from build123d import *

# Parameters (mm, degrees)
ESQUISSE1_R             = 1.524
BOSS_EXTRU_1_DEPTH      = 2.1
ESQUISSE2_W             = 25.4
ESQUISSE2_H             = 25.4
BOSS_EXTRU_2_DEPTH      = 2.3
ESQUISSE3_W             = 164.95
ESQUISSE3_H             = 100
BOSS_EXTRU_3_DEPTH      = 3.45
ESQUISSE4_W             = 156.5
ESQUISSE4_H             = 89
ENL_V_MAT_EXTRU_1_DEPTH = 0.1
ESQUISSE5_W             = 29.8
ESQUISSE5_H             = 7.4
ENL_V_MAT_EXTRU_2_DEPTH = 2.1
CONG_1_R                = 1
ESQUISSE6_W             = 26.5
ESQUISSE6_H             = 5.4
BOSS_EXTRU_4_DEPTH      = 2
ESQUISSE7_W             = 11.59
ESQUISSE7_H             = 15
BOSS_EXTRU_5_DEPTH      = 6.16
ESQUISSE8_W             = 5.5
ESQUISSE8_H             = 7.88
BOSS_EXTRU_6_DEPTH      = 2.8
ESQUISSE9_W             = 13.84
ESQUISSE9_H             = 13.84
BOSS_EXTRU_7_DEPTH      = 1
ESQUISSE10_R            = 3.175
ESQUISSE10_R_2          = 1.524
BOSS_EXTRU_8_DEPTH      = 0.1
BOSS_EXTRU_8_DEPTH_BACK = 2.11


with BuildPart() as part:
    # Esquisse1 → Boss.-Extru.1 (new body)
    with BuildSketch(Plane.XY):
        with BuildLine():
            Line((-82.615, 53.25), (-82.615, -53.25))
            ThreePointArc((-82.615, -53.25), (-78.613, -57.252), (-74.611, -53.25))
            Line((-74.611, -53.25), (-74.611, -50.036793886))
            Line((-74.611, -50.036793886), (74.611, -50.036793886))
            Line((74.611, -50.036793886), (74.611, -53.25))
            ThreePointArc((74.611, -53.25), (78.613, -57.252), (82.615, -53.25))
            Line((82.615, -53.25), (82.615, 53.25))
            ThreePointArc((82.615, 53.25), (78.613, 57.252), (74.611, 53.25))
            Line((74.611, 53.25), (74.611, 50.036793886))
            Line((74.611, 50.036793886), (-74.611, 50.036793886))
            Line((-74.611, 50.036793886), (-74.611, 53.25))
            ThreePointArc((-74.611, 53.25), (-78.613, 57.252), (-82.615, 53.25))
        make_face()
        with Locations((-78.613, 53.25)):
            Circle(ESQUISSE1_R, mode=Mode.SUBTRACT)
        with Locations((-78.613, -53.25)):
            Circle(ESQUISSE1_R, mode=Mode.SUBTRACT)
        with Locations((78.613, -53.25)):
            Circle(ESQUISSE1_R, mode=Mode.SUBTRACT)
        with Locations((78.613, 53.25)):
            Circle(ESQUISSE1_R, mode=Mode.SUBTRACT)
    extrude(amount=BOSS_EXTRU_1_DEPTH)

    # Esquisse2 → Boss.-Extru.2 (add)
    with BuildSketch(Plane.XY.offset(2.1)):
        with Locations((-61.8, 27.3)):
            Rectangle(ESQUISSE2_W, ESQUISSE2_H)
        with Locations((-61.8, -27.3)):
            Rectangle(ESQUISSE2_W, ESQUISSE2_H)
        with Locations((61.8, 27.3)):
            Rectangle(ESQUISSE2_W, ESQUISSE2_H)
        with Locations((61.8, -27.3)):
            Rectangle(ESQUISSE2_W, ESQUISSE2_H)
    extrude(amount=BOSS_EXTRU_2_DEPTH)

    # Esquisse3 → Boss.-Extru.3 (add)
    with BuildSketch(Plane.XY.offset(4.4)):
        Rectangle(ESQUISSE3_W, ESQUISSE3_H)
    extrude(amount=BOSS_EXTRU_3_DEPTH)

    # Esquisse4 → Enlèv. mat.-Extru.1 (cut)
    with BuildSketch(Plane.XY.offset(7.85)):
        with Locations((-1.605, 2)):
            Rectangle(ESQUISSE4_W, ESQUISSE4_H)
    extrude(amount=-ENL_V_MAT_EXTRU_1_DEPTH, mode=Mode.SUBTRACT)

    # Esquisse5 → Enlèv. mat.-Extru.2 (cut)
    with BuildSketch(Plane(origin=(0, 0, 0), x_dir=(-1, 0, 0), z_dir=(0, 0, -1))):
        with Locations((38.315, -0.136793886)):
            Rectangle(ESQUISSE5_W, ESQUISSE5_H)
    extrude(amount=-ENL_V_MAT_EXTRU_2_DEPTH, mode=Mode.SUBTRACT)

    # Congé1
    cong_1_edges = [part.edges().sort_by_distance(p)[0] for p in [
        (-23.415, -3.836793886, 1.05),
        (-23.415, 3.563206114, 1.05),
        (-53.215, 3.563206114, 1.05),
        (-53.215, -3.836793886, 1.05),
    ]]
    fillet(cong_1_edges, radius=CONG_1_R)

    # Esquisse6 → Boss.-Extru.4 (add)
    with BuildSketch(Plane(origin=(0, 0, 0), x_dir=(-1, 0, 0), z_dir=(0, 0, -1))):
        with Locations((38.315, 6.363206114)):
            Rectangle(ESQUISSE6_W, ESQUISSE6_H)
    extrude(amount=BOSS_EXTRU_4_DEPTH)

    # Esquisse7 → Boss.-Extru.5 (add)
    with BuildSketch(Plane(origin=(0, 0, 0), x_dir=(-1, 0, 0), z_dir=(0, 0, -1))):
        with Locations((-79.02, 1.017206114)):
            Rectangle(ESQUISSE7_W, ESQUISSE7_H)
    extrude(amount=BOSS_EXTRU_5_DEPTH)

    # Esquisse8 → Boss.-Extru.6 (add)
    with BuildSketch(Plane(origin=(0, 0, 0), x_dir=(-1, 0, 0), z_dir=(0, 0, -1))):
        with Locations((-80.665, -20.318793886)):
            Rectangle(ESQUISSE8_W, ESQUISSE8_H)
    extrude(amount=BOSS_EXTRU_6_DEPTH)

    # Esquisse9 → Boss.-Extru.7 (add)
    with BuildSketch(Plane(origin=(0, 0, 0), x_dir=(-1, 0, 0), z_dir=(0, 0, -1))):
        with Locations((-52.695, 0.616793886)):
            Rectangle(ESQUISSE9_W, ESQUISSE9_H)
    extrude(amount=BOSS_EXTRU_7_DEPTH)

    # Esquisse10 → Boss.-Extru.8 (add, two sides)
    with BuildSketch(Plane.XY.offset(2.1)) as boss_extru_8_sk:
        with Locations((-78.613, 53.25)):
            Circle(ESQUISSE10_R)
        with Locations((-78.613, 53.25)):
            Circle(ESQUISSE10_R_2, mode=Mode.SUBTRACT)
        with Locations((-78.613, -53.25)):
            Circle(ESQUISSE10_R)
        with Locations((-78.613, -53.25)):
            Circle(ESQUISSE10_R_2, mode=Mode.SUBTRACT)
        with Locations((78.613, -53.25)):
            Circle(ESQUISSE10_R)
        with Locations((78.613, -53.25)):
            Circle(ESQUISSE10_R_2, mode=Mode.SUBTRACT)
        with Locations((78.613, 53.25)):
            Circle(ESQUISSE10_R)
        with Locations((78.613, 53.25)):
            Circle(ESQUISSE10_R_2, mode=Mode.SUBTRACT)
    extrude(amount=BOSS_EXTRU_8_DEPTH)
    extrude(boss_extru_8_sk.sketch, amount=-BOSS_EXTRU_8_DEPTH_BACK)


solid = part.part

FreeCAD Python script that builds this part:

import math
import FreeCAD as App
import Part
import Sketcher

V = App.Vector
Q = App.Units.Quantity


def edges_at(feature, points):
    """Names of the edges that pass closest to the given points."""
    edges = feature.Shape.Edges
    near = lambda p: min(range(len(edges)), key=lambda i: edges[i].distToShape(Part.Vertex(*p))[0])
    return sorted({f"Edge{near(p) + 1}" for p in points})

doc = App.newDocument("Part")
params = doc.addObject("Spreadsheet::Sheet", "Params")
for row, (alias, value) in enumerate([
    ("sketch1_height", "106.5 mm"),
    ("pad1_length", "2.1 mm"),
    ("sketch2_width", "25.4 mm"),
    ("pad2_length", "2.3 mm"),
    ("sketch3_height", "100 mm"),
    ("sketch3_width", "164.95 mm"),
    ("pad3_length", "3.45 mm"),
    ("sketch4_height", "89 mm"),
    ("sketch4_width", "156.5 mm"),
    ("pocket1_length", "0.1 mm"),
    ("sketch5_width", "29.8 mm"),
    ("sketch5_height", "7.4 mm"),
    ("pocket2_length", "2.1 mm"),
    ("fillet_radius", "1 mm"),
    ("sketch6_width", "26.5 mm"),
    ("sketch6_height", "5.4 mm"),
    ("pad4_length", "2 mm"),
    ("sketch7_height", "15 mm"),
    ("sketch7_width", "11.59 mm"),
    ("pad5_length", "6.16 mm"),
    ("sketch8_width", "5.5 mm"),
    ("sketch8_height", "7.88 mm"),
    ("pad6_length", "2.8 mm"),
    ("sketch9_width", "13.84 mm"),
    ("pad7_length", "1 mm"),
    ("sketch10_diameter", "6.35 mm"),
    ("pad8_length", "0.1 mm"),
    ("pad8_length2", "2.11 mm"),
], start=1):
    params.set(f"A{row}", alias)
    params.set(f"B{row}", "=" + value)
    params.setAlias(f"B{row}", alias)

body = doc.addObject("PartDesign::Body", "Body")

sketch1 = body.newObject("Sketcher::SketchObject", "Sketch")
sketch1.AttachmentSupport = (doc.getObject("XY_Plane"), [""])
sketch1.MapMode = "FlatFace"
sketch1.addGeometry([
    Part.LineSegment(V(-82.6, 53.2, 0), V(-82.6, -53.2, 0)),
    Part.ArcOfCircle(Part.Circle(V(-78.6, -53.2, 0), V(0, 0, 1), 4), math.radians(180), math.radians(360)),
    Part.LineSegment(V(-74.6, -53.2, 0), V(-74.6, -50, 0)),
    Part.LineSegment(V(-74.6, -50, 0), V(74.6, -50, 0)),
    Part.LineSegment(V(74.6, -50, 0), V(74.6, -53.2, 0)),
    Part.ArcOfCircle(Part.Circle(V(78.6, -53.2, 0), V(0, 0, 1), 4), math.radians(180), math.radians(360)),
    Part.LineSegment(V(82.6, -53.2, 0), V(82.6, 53.2, 0)),
    Part.ArcOfCircle(Part.Circle(V(78.6, 53.2, 0), V(0, 0, 1), 4), math.radians(0), math.radians(180)),
    Part.LineSegment(V(74.6, 53.2, 0), V(74.6, 50, 0)),
    Part.LineSegment(V(74.6, 50, 0), V(-74.6, 50, 0)),
    Part.LineSegment(V(-74.6, 50, 0), V(-74.6, 53.2, 0)),
    Part.ArcOfCircle(Part.Circle(V(-78.6, 53.2, 0), V(0, 0, 1), 4), math.radians(0), math.radians(180)),
    Part.Circle(V(-78.6, -53.2, 0), V(0, 0, 1), 1.5),
    Part.Circle(V(78.6, -53.2, 0), V(0, 0, 1), 1.5),
    Part.Circle(V(-78.6, 53.2, 0), V(0, 0, 1), 1.5),
    Part.Circle(V(78.6, 53.2, 0), V(0, 0, 1), 1.5),
], False)
sketch1.addConstraint([
    Sketcher.Constraint("Tangent", 0, 2, 1, 1),
    Sketcher.Constraint("Tangent", 1, 2, 2, 1),
    Sketcher.Constraint("Coincident", 2, 2, 3, 1),
    Sketcher.Constraint("Coincident", 3, 2, 4, 1),
    Sketcher.Constraint("Tangent", 4, 2, 5, 1),
    Sketcher.Constraint("Tangent", 5, 2, 6, 1),
    Sketcher.Constraint("Tangent", 6, 2, 7, 1),
    Sketcher.Constraint("Tangent", 7, 2, 8, 1),
    Sketcher.Constraint("Coincident", 8, 2, 9, 1),
    Sketcher.Constraint("Coincident", 9, 2, 10, 1),
    Sketcher.Constraint("Tangent", 10, 2, 11, 1),
    Sketcher.Constraint("Tangent", 11, 2, 0, 1),
    Sketcher.Constraint("Vertical", 0),
    Sketcher.Constraint("Vertical", 2),
    Sketcher.Constraint("Horizontal", 3),
    Sketcher.Constraint("Vertical", 4),
    Sketcher.Constraint("Vertical", 6),
    Sketcher.Constraint("Vertical", 8),
    Sketcher.Constraint("Horizontal", 9),
    Sketcher.Constraint("Vertical", 10),
    Sketcher.Constraint("Coincident", 12, 3, 1, 3),
    Sketcher.Constraint("Coincident", 13, 3, 5, 3),
    Sketcher.Constraint("Coincident", 14, 3, 11, 3),
    Sketcher.Constraint("Coincident", 15, 3, 7, 3),
    Sketcher.Constraint("Equal", 1, 5),
    Sketcher.Constraint("Equal", 5, 7),
    Sketcher.Constraint("Equal", 7, 11),
    Sketcher.Constraint("Equal", 12, 13),
    Sketcher.Constraint("Equal", 13, 14),
    Sketcher.Constraint("Equal", 14, 15),
    Sketcher.Constraint("Symmetric", 1, 3, 7, 3, -1, 1),
    Sketcher.Constraint("Horizontal", 1, 3, 5, 3),
    Sketcher.Constraint("Horizontal", 7, 3, 11, 3),
    Sketcher.Constraint("Equal", 4, 8),
    Sketcher.Constraint("Diameter", 12, Q("3.048 mm")),
    Sketcher.Constraint("DistanceY", 0, 2, 0, 1, Q("106.5 mm")),
    Sketcher.Constraint("Radius", 1, Q("4.002 mm")),
    Sketcher.Constraint("DistanceX", 3, 1, 3, 2, Q("149.222 mm")),
    Sketcher.Constraint("DistanceY", 2, 1, 2, 2, Q("3.213206 mm")),
])
sketch1.setExpression("Constraints[35]", "Params.sketch1_height")
pad1 = body.newObject("PartDesign::Pad", "Pad")
pad1.Profile = sketch1
pad1.setExpression("Length", "Params.pad1_length")

sketch2 = body.newObject("Sketcher::SketchObject", "Sketch001")
sketch2.AttachmentSupport = (doc.getObject("XY_Plane"), [""])
sketch2.MapMode = "FlatFace"
sketch2.AttachmentOffset = App.Placement(V(0, 0, 2.1), App.Rotation())
sketch2.addGeometry([
    Part.LineSegment(V(-74, 40, 0), V(-74, 15, 0)),
    Part.LineSegment(V(-74, 15, 0), V(-49, 15, 0)),
    Part.LineSegment(V(-49, 15, 0), V(-49, 40, 0)),
    Part.LineSegment(V(-49, 40, 0), V(-74, 40, 0)),
    Part.LineSegment(V(-74, -15, 0), V(-74, -40, 0)),
    Part.LineSegment(V(-74, -40, 0), V(-49, -40, 0)),
    Part.LineSegment(V(-49, -40, 0), V(-49, -15, 0)),
    Part.LineSegment(V(-49, -15, 0), V(-74, -15, 0)),
    Part.LineSegment(V(49, 40, 0), V(49, 15, 0)),
    Part.LineSegment(V(49, 15, 0), V(74, 15, 0)),
    Part.LineSegment(V(74, 15, 0), V(74, 40, 0)),
    Part.LineSegment(V(74, 40, 0), V(49, 40, 0)),
    Part.LineSegment(V(49, -15, 0), V(49, -40, 0)),
    Part.LineSegment(V(49, -40, 0), V(74, -40, 0)),
    Part.LineSegment(V(74, -40, 0), V(74, -15, 0)),
    Part.LineSegment(V(74, -15, 0), V(49, -15, 0)),
], False)
sketch2.addConstraint([
    Sketcher.Constraint("Coincident", 0, 2, 1, 1),
    Sketcher.Constraint("Coincident", 1, 2, 2, 1),
    Sketcher.Constraint("Coincident", 2, 2, 3, 1),
    Sketcher.Constraint("Coincident", 3, 2, 0, 1),
    Sketcher.Constraint("Coincident", 4, 2, 5, 1),
    Sketcher.Constraint("Coincident", 5, 2, 6, 1),
    Sketcher.Constraint("Coincident", 6, 2, 7, 1),
    Sketcher.Constraint("Coincident", 7, 2, 4, 1),
    Sketcher.Constraint("Coincident", 8, 2, 9, 1),
    Sketcher.Constraint("Coincident", 9, 2, 10, 1),
    Sketcher.Constraint("Coincident", 10, 2, 11, 1),
    Sketcher.Constraint("Coincident", 11, 2, 8, 1),
    Sketcher.Constraint("Coincident", 12, 2, 13, 1),
    Sketcher.Constraint("Coincident", 13, 2, 14, 1),
    Sketcher.Constraint("Coincident", 14, 2, 15, 1),
    Sketcher.Constraint("Coincident", 15, 2, 12, 1),
    Sketcher.Constraint("Vertical", 0),
    Sketcher.Constraint("Horizontal", 1),
    Sketcher.Constraint("Vertical", 2),
    Sketcher.Constraint("Horizontal", 3),
    Sketcher.Constraint("Vertical", 4),
    Sketcher.Constraint("Horizontal", 5),
    Sketcher.Constraint("Vertical", 6),
    Sketcher.Constraint("Horizontal", 7),
    Sketcher.Constraint("Vertical", 8),
    Sketcher.Constraint("Horizontal", 9),
    Sketcher.Constraint("Vertical", 10),
    Sketcher.Constraint("Horizontal", 11),
    Sketcher.Constraint("Vertical", 12),
    Sketcher.Constraint("Horizontal", 13),
    Sketcher.Constraint("Vertical", 14),
    Sketcher.Constraint("Horizontal", 15),
    Sketcher.Constraint("Symmetric", 6, 2, 8, 2, -1, 1),
    Sketcher.Constraint("Symmetric", 4, 2, 10, 2, -1, 1),
    Sketcher.Constraint("Symmetric", 2, 2, 12, 2, -1, 1),
    Sketcher.Constraint("Symmetric", 0, 2, 14, 2, -1, 1),
    Sketcher.Constraint("Symmetric", 1, 2, 8, 2, -2),
    Sketcher.Constraint("Symmetric", 3, 2, 10, 2, -2),
    Sketcher.Constraint("Equal", 15, 0),
    Sketcher.Constraint("DistanceX", 1, 1, 1, 2, Q("25.4 mm")),
    Sketcher.Constraint("DistanceY", -1, 1, 2, 2, Q("40 mm")),
    Sketcher.Constraint("DistanceX", 0, 2, -1, 1, Q("74.5 mm")),
])
sketch2.setExpression("Constraints[39]", "Params.sketch2_width")
pad2 = body.newObject("PartDesign::Pad", "Pad001")
pad2.Profile = sketch2
pad2.setExpression("Length", "Params.pad2_length")

sketch3 = body.newObject("Sketcher::SketchObject", "Sketch002")
sketch3.AttachmentSupport = (doc.getObject("XY_Plane"), [""])
sketch3.MapMode = "FlatFace"
sketch3.AttachmentOffset = App.Placement(V(0, 0, 4.4), App.Rotation())
sketch3.addGeometry([
    Part.LineSegment(V(-82, 50, 0), V(-82, -50, 0)),
    Part.LineSegment(V(-82, -50, 0), V(82, -50, 0)),
    Part.LineSegment(V(82, -50, 0), V(82, 50, 0)),
    Part.LineSegment(V(82, 50, 0), V(-82, 50, 0)),
], False)
sketch3.addConstraint([
    Sketcher.Constraint("Coincident", 0, 2, 1, 1),
    Sketcher.Constraint("Coincident", 1, 2, 2, 1),
    Sketcher.Constraint("Coincident", 2, 2, 3, 1),
    Sketcher.Constraint("Coincident", 3, 2, 0, 1),
    Sketcher.Constraint("Vertical", 0),
    Sketcher.Constraint("Horizontal", 1),
    Sketcher.Constraint("Vertical", 2),
    Sketcher.Constraint("Horizontal", 3),
    Sketcher.Constraint("Symmetric", 0, 2, 2, 2, -1, 1),
    Sketcher.Constraint("DistanceY", 0, 2, 0, 1, Q("100 mm")),
    Sketcher.Constraint("DistanceX", 1, 1, 1, 2, Q("164.95 mm")),
])
sketch3.setExpression("Constraints[9]", "Params.sketch3_height")
sketch3.setExpression("Constraints[10]", "Params.sketch3_width")
pad3 = body.newObject("PartDesign::Pad", "Pad002")
pad3.Profile = sketch3
pad3.setExpression("Length", "Params.pad3_length")

sketch4 = body.newObject("Sketcher::SketchObject", "Sketch003")
sketch4.AttachmentSupport = (doc.getObject("XY_Plane"), [""])
sketch4.MapMode = "FlatFace"
sketch4.AttachmentOffset = App.Placement(V(0, 0, 7.85), App.Rotation())
sketch4.addGeometry([
    Part.LineSegment(V(-80, 46, 0), V(-80, -42, 0)),
    Part.LineSegment(V(-80, -42, 0), V(77, -42, 0)),
    Part.LineSegment(V(77, -42, 0), V(77, 46, 0)),
    Part.LineSegment(V(77, 46, 0), V(-80, 46, 0)),
], False)
sketch4.addConstraint([
    Sketcher.Constraint("Coincident", 0, 2, 1, 1),
    Sketcher.Constraint("Coincident", 1, 2, 2, 1),
    Sketcher.Constraint("Coincident", 2, 2, 3, 1),
    Sketcher.Constraint("Coincident", 3, 2, 0, 1),
    Sketcher.Constraint("Vertical", 0),
    Sketcher.Constraint("Horizontal", 1),
    Sketcher.Constraint("Vertical", 2),
    Sketcher.Constraint("Horizontal", 3),
    Sketcher.Constraint("DistanceY", 0, 2, 0, 1, Q("89 mm")),
    Sketcher.Constraint("DistanceX", 1, 1, 1, 2, Q("156.5 mm")),
    Sketcher.Constraint("DistanceY", 0, 2, -1, 1, Q("42.5 mm")),
    Sketcher.Constraint("DistanceX", 0, 2, -1, 1, Q("79.855 mm")),
])
sketch4.setExpression("Constraints[8]", "Params.sketch4_height")
sketch4.setExpression("Constraints[9]", "Params.sketch4_width")
pocket1 = body.newObject("PartDesign::Pocket", "Pocket")
pocket1.Profile = sketch4
pocket1.setExpression("Length", "Params.pocket1_length")

sketch5 = body.newObject("Sketcher::SketchObject", "Sketch004")
sketch5.AttachmentSupport = (doc.getObject("XY_Plane"), [""])
sketch5.MapMode = "FlatFace"
sketch5.addGeometry([
    Part.LineSegment(V(-23, 4, 0), V(-23, -4, 0)),
    Part.LineSegment(V(-23, -4, 0), V(-53, -4, 0)),
    Part.LineSegment(V(-53, -4, 0), V(-53, 4, 0)),
    Part.LineSegment(V(-53, 4, 0), V(-23, 4, 0)),
], False)
sketch5.addConstraint([
    Sketcher.Constraint("Coincident", 0, 2, 1, 1),
    Sketcher.Constraint("Coincident", 1, 2, 2, 1),
    Sketcher.Constraint("Coincident", 2, 2, 3, 1),
    Sketcher.Constraint("Coincident", 3, 2, 0, 1),
    Sketcher.Constraint("Vertical", 0),
    Sketcher.Constraint("Horizontal", 1),
    Sketcher.Constraint("Vertical", 2),
    Sketcher.Constraint("Horizontal", 3),
    Sketcher.Constraint("DistanceX", 1, 2, 1, 1, Q("29.8 mm")),
    Sketcher.Constraint("DistanceY", 0, 2, 0, 1, Q("7.4 mm")),
    Sketcher.Constraint("DistanceX", 0, 2, -1, 1, Q("23.415 mm")),
    Sketcher.Constraint("DistanceY", 0, 2, -1, 1, Q("3.836794 mm")),
])
sketch5.setExpression("Constraints[8]", "Params.sketch5_width")
sketch5.setExpression("Constraints[9]", "Params.sketch5_height")
pocket2 = body.newObject("PartDesign::Pocket", "Pocket001")
pocket2.Profile = sketch5
pocket2.setExpression("Length", "Params.pocket2_length")
pocket2.Reversed = True
doc.recompute()

fillet = body.newObject("PartDesign::Fillet", "Fillet")
fillet.Base = (pocket2, edges_at(pocket2, [
    (-23.415, -3.837, 1.05),
    (-23.415, 3.563, 1.05),
    (-53.215, 3.563, 1.05),
    (-53.215, -3.837, 1.05),
]))
fillet.setExpression("Radius", "Params.fillet_radius")

sketch6 = body.newObject("Sketcher::SketchObject", "Sketch005")
sketch6.AttachmentSupport = (doc.getObject("XY_Plane"), [""])
sketch6.MapMode = "FlatFace"
sketch6.addGeometry([
    Part.LineSegment(V(-25, 9, 0), V(-25, 4, 0)),
    Part.LineSegment(V(-25, 4, 0), V(-52, 4, 0)),
    Part.LineSegment(V(-52, 4, 0), V(-52, 9, 0)),
    Part.LineSegment(V(-52, 9, 0), V(-25, 9, 0)),
], False)
sketch6.addConstraint([
    Sketcher.Constraint("Coincident", 0, 2, 1, 1),
    Sketcher.Constraint("Coincident", 1, 2, 2, 1),
    Sketcher.Constraint("Coincident", 2, 2, 3, 1),
    Sketcher.Constraint("Coincident", 3, 2, 0, 1),
    Sketcher.Constraint("Vertical", 0),
    Sketcher.Constraint("Horizontal", 1),
    Sketcher.Constraint("Vertical", 2),
    Sketcher.Constraint("Horizontal", 3),
    Sketcher.Constraint("DistanceX", 1, 2, 1, 1, Q("26.5 mm")),
    Sketcher.Constraint("DistanceY", 0, 2, 0, 1, Q("5.4 mm")),
    Sketcher.Constraint("DistanceX", 0, 2, -1, 1, Q("25.065 mm")),
    Sketcher.Constraint("DistanceY", -1, 1, 0, 2, Q("3.663206 mm")),
])
sketch6.setExpression("Constraints[8]", "Params.sketch6_width")
sketch6.setExpression("Constraints[9]", "Params.sketch6_height")
pad4 = body.newObject("PartDesign::Pad", "Pad003")
pad4.Profile = sketch6
pad4.setExpression("Length", "Params.pad4_length")
pad4.Reversed = True

sketch7 = body.newObject("Sketcher::SketchObject", "Sketch006")
sketch7.AttachmentSupport = (doc.getObject("XY_Plane"), [""])
sketch7.MapMode = "FlatFace"
sketch7.addGeometry([
    Part.LineSegment(V(85, 9, 0), V(85, -6, 0)),
    Part.LineSegment(V(85, -6, 0), V(73, -6, 0)),
    Part.LineSegment(V(73, -6, 0), V(73, 9, 0)),
    Part.LineSegment(V(73, 9, 0), V(85, 9, 0)),
], False)
sketch7.addConstraint([
    Sketcher.Constraint("Coincident", 0, 2, 1, 1),
    Sketcher.Constraint("Coincident", 1, 2, 2, 1),
    Sketcher.Constraint("Coincident", 2, 2, 3, 1),
    Sketcher.Constraint("Coincident", 3, 2, 0, 1),
    Sketcher.Constraint("Vertical", 0),
    Sketcher.Constraint("Horizontal", 1),
    Sketcher.Constraint("Vertical", 2),
    Sketcher.Constraint("Horizontal", 3),
    Sketcher.Constraint("DistanceY", 0, 2, 0, 1, Q("15 mm")),
    Sketcher.Constraint("DistanceX", 1, 2, 1, 1, Q("11.59 mm")),
    Sketcher.Constraint("DistanceX", -1, 1, 0, 2, Q("84.815 mm")),
    Sketcher.Constraint("DistanceY", 0, 2, -1, 1, Q("6.482794 mm")),
])
sketch7.setExpression("Constraints[8]", "Params.sketch7_height")
sketch7.setExpression("Constraints[9]", "Params.sketch7_width")
pad5 = body.newObject("PartDesign::Pad", "Pad004")
pad5.Profile = sketch7
pad5.setExpression("Length", "Params.pad5_length")
pad5.Reversed = True

sketch8 = body.newObject("Sketcher::SketchObject", "Sketch007")
sketch8.AttachmentSupport = (doc.getObject("XY_Plane"), [""])
sketch8.MapMode = "FlatFace"
sketch8.addGeometry([
    Part.LineSegment(V(83, -16, 0), V(83, -24, 0)),
    Part.LineSegment(V(83, -24, 0), V(78, -24, 0)),
    Part.LineSegment(V(78, -24, 0), V(78, -16, 0)),
    Part.LineSegment(V(78, -16, 0), V(83, -16, 0)),
], False)
sketch8.addConstraint([
    Sketcher.Constraint("Coincident", 0, 2, 1, 1),
    Sketcher.Constraint("Coincident", 1, 2, 2, 1),
    Sketcher.Constraint("Coincident", 2, 2, 3, 1),
    Sketcher.Constraint("Coincident", 3, 2, 0, 1),
    Sketcher.Constraint("Vertical", 0),
    Sketcher.Constraint("Horizontal", 1),
    Sketcher.Constraint("Vertical", 2),
    Sketcher.Constraint("Horizontal", 3),
    Sketcher.Constraint("DistanceX", 1, 2, 1, 1, Q("5.5 mm")),
    Sketcher.Constraint("DistanceY", 0, 2, 0, 1, Q("7.88 mm")),
    Sketcher.Constraint("DistanceX", -1, 1, 0, 2, Q("83.415 mm")),
    Sketcher.Constraint("DistanceY", 0, 2, -1, 1, Q("24.258794 mm")),
])
sketch8.setExpression("Constraints[8]", "Params.sketch8_width")
sketch8.setExpression("Constraints[9]", "Params.sketch8_height")
pad6 = body.newObject("PartDesign::Pad", "Pad005")
pad6.Profile = sketch8
pad6.setExpression("Length", "Params.pad6_length")
pad6.Reversed = True

sketch9 = body.newObject("Sketcher::SketchObject", "Sketch008")
sketch9.AttachmentSupport = (doc.getObject("XY_Plane"), [""])
sketch9.MapMode = "FlatFace"
sketch9.addGeometry([
    Part.LineSegment(V(60, 8, 0), V(60, -6, 0)),
    Part.LineSegment(V(60, -6, 0), V(46, -6, 0)),
    Part.LineSegment(V(46, -6, 0), V(46, 8, 0)),
    Part.LineSegment(V(46, 8, 0), V(60, 8, 0)),
], False)
sketch9.addConstraint([
    Sketcher.Constraint("Coincident", 0, 2, 1, 1),
    Sketcher.Constraint("Coincident", 1, 2, 2, 1),
    Sketcher.Constraint("Coincident", 2, 2, 3, 1),
    Sketcher.Constraint("Coincident", 3, 2, 0, 1),
    Sketcher.Constraint("Vertical", 0),
    Sketcher.Constraint("Horizontal", 1),
    Sketcher.Constraint("Vertical", 2),
    Sketcher.Constraint("Horizontal", 3),
    Sketcher.Constraint("Equal", 3, 0),
    Sketcher.Constraint("DistanceX", 1, 2, 1, 1, Q("13.84 mm")),
    Sketcher.Constraint("DistanceX", -1, 1, 0, 2, Q("59.615 mm")),
    Sketcher.Constraint("DistanceY", 0, 2, -1, 1, Q("6.303206 mm")),
])
sketch9.setExpression("Constraints[9]", "Params.sketch9_width")
pad7 = body.newObject("PartDesign::Pad", "Pad006")
pad7.Profile = sketch9
pad7.setExpression("Length", "Params.pad7_length")
pad7.Reversed = True

sketch10 = body.newObject("Sketcher::SketchObject", "Sketch009")
sketch10.AttachmentSupport = (doc.getObject("XY_Plane"), [""])
sketch10.MapMode = "FlatFace"
sketch10.AttachmentOffset = App.Placement(V(0, 0, 2.1), App.Rotation())
sketch10.addGeometry([
    Part.Circle(V(-78.6, 53.2, 0), V(0, 0, 1), 3.2),
    Part.Circle(V(-78.6, 53.2, 0), V(0, 0, 1), 1.5),
    Part.Circle(V(-78.6, -53.2, 0), V(0, 0, 1), 3.2),
    Part.Circle(V(-78.6, -53.2, 0), V(0, 0, 1), 1.5),
    Part.Circle(V(78.6, -53.2, 0), V(0, 0, 1), 3.2),
    Part.Circle(V(78.6, -53.2, 0), V(0, 0, 1), 1.5),
    Part.Circle(V(78.6, 53.2, 0), V(0, 0, 1), 3.2),
    Part.Circle(V(78.6, 53.2, 0), V(0, 0, 1), 1.5),
], False)
sketch10.addConstraint([
    Sketcher.Constraint("Coincident", 1, 3, 0, 3),
    Sketcher.Constraint("Coincident", 3, 3, 2, 3),
    Sketcher.Constraint("Coincident", 5, 3, 4, 3),
    Sketcher.Constraint("Coincident", 7, 3, 6, 3),
    Sketcher.Constraint("Equal", 0, 2),
    Sketcher.Constraint("Equal", 1, 3),
    Sketcher.Constraint("Equal", 2, 4),
    Sketcher.Constraint("Equal", 3, 5),
    Sketcher.Constraint("Equal", 4, 6),
    Sketcher.Constraint("Equal", 5, 7),
    Sketcher.Constraint("Symmetric", 0, 3, 4, 3, -1, 1),
    Sketcher.Constraint("Symmetric", 2, 3, 6, 3, -1, 1),
    Sketcher.Constraint("Symmetric", 2, 3, 4, 3, -2),
    Sketcher.Constraint("Diameter", 0, Q("6.35 mm")),
    Sketcher.Constraint("Diameter", 1, Q("3.048 mm")),
    Sketcher.Constraint("DistanceY", 2, 3, 0, 3, Q("106.5 mm")),
    Sketcher.Constraint("DistanceX", 0, 3, -1, 1, Q("78.613 mm")),
])
sketch10.setExpression("Constraints[13]", "Params.sketch10_diameter")
pad8 = body.newObject("PartDesign::Pad", "Pad007")
pad8.Profile = sketch10
pad8.Type = "TwoLengths"
pad8.setExpression("Length", "Params.pad8_length")
pad8.setExpression("Length2", "Params.pad8_length2")

doc.recompute()
